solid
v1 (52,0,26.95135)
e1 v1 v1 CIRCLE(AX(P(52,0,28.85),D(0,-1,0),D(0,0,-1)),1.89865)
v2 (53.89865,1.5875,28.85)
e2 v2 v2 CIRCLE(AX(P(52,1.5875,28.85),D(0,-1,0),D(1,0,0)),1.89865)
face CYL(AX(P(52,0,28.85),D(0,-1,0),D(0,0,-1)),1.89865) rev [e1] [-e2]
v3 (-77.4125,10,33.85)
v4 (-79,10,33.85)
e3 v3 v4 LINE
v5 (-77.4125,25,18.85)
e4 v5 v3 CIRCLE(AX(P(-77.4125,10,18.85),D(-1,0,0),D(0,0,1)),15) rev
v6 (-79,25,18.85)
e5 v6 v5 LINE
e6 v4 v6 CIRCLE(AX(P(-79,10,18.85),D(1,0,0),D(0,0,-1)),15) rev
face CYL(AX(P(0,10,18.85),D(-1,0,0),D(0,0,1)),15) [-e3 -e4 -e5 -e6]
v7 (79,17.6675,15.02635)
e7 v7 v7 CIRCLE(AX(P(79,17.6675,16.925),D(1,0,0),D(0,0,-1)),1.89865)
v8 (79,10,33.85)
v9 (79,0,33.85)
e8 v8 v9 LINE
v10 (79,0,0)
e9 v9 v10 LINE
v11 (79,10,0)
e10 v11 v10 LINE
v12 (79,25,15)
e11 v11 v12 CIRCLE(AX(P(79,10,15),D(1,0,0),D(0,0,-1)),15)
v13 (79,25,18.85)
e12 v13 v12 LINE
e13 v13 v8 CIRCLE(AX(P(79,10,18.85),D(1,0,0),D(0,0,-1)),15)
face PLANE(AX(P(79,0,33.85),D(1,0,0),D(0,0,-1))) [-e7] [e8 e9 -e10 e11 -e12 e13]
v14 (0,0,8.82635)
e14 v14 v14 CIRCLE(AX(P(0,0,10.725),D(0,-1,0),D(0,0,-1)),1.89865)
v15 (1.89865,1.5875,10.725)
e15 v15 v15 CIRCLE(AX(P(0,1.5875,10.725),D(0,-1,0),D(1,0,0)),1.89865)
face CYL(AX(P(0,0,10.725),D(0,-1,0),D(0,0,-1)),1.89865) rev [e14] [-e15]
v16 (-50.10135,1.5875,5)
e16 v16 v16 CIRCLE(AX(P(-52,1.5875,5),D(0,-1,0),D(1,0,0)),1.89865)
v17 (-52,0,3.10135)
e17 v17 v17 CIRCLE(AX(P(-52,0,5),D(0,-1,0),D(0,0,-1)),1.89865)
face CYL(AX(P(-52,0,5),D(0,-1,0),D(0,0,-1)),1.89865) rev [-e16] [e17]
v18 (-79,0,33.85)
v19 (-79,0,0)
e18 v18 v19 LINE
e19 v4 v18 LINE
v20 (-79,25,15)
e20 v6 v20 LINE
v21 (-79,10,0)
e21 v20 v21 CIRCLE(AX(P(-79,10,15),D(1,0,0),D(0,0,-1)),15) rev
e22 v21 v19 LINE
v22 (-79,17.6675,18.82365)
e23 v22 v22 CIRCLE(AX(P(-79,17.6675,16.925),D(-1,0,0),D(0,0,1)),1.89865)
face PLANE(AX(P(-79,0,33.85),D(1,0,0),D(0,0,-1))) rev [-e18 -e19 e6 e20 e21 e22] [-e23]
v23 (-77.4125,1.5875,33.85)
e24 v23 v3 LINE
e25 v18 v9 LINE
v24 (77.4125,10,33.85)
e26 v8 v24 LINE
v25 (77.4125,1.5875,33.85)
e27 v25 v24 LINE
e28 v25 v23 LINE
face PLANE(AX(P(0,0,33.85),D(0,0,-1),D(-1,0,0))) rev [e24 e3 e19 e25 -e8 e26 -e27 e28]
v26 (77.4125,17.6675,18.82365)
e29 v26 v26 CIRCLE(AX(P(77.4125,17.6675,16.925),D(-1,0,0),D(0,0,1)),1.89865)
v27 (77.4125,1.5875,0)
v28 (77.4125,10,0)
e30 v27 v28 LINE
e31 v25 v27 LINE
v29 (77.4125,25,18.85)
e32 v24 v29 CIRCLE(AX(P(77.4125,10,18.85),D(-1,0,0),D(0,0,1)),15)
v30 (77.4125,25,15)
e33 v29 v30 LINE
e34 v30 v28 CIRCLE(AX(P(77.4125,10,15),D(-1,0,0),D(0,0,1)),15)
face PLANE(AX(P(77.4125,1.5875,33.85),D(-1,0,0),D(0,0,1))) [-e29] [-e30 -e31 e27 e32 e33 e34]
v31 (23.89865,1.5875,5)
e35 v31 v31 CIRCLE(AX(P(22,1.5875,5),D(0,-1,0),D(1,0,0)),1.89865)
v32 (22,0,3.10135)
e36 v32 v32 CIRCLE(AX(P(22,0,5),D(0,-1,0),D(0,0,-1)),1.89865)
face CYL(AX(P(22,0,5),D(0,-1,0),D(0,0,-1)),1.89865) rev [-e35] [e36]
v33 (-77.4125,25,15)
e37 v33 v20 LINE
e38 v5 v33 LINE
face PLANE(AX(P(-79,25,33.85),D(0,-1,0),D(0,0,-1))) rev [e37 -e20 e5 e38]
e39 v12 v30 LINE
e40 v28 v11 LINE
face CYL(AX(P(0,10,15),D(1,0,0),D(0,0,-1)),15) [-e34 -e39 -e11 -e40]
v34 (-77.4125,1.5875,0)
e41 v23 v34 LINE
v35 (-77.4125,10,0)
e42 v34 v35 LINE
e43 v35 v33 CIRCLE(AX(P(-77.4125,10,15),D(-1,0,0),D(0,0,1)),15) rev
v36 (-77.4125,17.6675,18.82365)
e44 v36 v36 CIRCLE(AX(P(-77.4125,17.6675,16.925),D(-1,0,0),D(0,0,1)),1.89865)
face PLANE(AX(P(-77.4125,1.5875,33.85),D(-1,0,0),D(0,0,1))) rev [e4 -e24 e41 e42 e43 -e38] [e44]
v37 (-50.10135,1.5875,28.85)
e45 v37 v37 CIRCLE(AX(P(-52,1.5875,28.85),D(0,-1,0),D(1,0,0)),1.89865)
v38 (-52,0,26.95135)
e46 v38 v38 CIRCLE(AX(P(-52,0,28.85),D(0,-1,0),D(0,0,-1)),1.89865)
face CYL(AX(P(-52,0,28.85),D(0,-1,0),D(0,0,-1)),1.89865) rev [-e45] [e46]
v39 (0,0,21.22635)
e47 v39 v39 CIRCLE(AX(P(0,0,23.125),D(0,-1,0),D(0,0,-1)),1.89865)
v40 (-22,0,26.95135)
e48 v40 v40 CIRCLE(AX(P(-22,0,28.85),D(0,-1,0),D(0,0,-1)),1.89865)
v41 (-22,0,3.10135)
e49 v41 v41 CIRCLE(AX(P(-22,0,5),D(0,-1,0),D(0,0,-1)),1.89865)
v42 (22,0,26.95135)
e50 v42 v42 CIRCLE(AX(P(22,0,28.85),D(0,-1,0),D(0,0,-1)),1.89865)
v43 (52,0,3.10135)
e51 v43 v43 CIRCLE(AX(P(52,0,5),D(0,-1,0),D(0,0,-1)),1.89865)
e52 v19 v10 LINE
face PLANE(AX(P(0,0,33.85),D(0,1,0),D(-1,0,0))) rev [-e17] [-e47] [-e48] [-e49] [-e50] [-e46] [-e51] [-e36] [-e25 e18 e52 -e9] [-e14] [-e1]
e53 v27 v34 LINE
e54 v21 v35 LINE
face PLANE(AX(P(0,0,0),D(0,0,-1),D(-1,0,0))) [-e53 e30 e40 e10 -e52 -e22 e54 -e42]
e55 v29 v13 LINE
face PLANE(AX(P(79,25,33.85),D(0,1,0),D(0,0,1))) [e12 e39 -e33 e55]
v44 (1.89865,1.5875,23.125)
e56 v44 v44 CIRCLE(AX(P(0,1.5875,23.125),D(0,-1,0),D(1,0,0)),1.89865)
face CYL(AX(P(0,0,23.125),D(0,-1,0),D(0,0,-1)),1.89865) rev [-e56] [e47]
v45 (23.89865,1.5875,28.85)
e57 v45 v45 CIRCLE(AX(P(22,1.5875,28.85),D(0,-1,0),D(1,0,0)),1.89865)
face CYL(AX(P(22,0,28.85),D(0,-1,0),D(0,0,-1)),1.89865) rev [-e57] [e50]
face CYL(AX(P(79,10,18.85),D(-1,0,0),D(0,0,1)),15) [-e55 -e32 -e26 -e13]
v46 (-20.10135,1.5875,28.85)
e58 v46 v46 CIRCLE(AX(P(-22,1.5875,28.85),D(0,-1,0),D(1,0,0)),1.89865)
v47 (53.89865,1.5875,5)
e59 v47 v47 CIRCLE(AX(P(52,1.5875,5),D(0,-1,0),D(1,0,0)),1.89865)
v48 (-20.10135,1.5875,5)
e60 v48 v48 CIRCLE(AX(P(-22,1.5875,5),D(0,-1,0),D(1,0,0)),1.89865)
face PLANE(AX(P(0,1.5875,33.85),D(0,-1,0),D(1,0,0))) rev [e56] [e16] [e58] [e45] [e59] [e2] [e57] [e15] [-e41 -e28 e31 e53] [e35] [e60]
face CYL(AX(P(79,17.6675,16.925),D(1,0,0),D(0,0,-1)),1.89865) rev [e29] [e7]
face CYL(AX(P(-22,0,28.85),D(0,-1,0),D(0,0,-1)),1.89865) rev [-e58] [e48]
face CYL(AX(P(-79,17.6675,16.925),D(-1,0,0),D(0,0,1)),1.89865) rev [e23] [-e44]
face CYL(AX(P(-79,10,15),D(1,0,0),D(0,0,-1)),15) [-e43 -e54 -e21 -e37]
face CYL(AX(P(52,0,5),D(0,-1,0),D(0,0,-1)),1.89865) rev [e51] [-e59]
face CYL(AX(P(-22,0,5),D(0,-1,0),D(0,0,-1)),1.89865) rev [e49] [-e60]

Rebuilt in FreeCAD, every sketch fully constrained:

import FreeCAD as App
import Part
import Sketcher

V = App.Vector


def edges_at(feature, points):
    """Names of the edges that pass closest to the given points."""
    edges = feature.Shape.Edges
    near = lambda p: min(range(len(edges)), key=lambda i: edges[i].distToShape(Part.Vertex(*p))[0])
    return sorted({f"Edge{near(p) + 1}" for p in points})

doc = App.newDocument("Part")
params = doc.addObject("Spreadsheet::Sheet", "Params")
for row, (alias, value) in enumerate([
    ("sketch1_width", "79 mm"),
    ("sketch1_height", "25 mm"),
    ("pad1_length", "33.85 mm"),
    ("hole_diameter", "3.7973 mm"),
    ("hole2_diameter", "3.7973 mm"),
    ("fillet_radius", "15 mm"),
    ("fillet2_radius", "15 mm"),
    ("hole3_diameter", "3.7973 mm"),
], start=1):
    params.set(f"A{row}", alias)
    params.set(f"B{row}", "=" + value)
    params.setAlias(f"B{row}", alias)

body = doc.addObject("PartDesign::Body", "Body")

# Sketch on XY plane
sketch1 = body.newObject("Sketcher::SketchObject", "Sketch")
sketch1.AttachmentSupport = (doc.getObject("XY_Plane"), [""])
sketch1.MapMode = "FlatFace"
sketch1.addGeometry([
    Part.LineSegment(V(-79, 0, 0), V(0, 0, 0)),  # 0
    Part.LineSegment(V(0, 0, 0), V(0, 1.5875, 0)),  # 1
    Part.LineSegment(V(0, 1.5875, 0), V(-77.4125, 1.5875, 0)),  # 2
    Part.LineSegment(V(-77.4125, 1.5875, 0), V(-77.4125, 25, 0)),  # 3
    Part.LineSegment(V(-77.4125, 25, 0), V(-79, 25, 0)),  # 4
    Part.LineSegment(V(-79, 25, 0), V(-79, 0, 0)),  # 5
], False)
sketch1.addConstraint([
    Sketcher.Constraint("Coincident", 0, 2, 1, 1),
    Sketcher.Constraint("Coincident", 1, 2, 2, 1),
    Sketcher.Constraint("Coincident", 2, 2, 3, 1),
    Sketcher.Constraint("Coincident", 3, 2, 4, 1),
    Sketcher.Constraint("Coincident", 4, 2, 5, 1),
    Sketcher.Constraint("Coincident", 5, 2, 0, 1),
    Sketcher.Constraint("Horizontal", 0),
    Sketcher.Constraint("Vertical", 1),
    Sketcher.Constraint("Horizontal", 2),
    Sketcher.Constraint("Vertical", 3),
    Sketcher.Constraint("Horizontal", 4),
    Sketcher.Constraint("Vertical", 5),
    Sketcher.Constraint("Coincident", 0, 2, -1, 1),
    Sketcher.Constraint("Equal", 4, 1),
    Sketcher.Constraint("DistanceX", 0, 1, 0, 2, 79.0),
    Sketcher.Constraint("DistanceY", 5, 2, 5, 1, 25.0),
    Sketcher.Constraint("DistanceX", 2, 2, 2, 1, 77.4125),
])
sketch1.setExpression("Constraints[14]", "Params.sketch1_width")
sketch1.setExpression("Constraints[15]", "Params.sketch1_height")
pad1 = body.newObject("PartDesign::Pad", "Pad")
pad1.Profile = sketch1
pad1.setExpression("Length", "Params.pad1_length")

# Sketch on YZ plane
sketch2 = body.newObject("Sketcher::SketchObject", "Sketch001")
sketch2.AttachmentSupport = (doc.getObject("YZ_Plane"), [""])
sketch2.MapMode = "FlatFace"
sketch2.AttachmentOffset = App.Placement(V(0, 0, -79), App.Rotation())
sketch2.addGeometry(Part.Circle(V(17.6675, 16.925, 0), V(0, 0, 1), 1.89865), False)
sketch2.addConstraint([
    Sketcher.Constraint("Diameter", 0, 3.7973),
    Sketcher.Constraint("DistanceY", -1, 1, 0, 3, 16.925),
    Sketcher.Constraint("DistanceX", -1, 1, 0, 3, 17.6675),
])
doc.recompute()
hole = body.newObject("PartDesign::Hole", "Hole")
hole.Profile = sketch2
hole.ThreadType = "None"
hole.setExpression("Diameter", "Params.hole_diameter")
hole.DepthType = "ThroughAll"
hole.Reversed = True

# Sketch on XZ plane
sketch3 = body.newObject("Sketcher::SketchObject", "Sketch002")
sketch3.AttachmentSupport = (doc.getObject("XZ_Plane"), [""])
sketch3.MapMode = "FlatFace"
sketch3.addGeometry([
    Part.Circle(V(-22, 5, 0), V(0, 0, 1), 1.89865),
    Part.Circle(V(-52, 5, 0), V(0, 0, 1), 1.89865),
    Part.Circle(V(-52, 28.85, 0), V(0, 0, 1), 1.89865),
    Part.Circle(V(-22, 28.85, 0), V(0, 0, 1), 1.89865),
], False)
sketch3.addConstraint([
    Sketcher.Constraint("Equal", 0, 1),
    Sketcher.Constraint("Equal", 1, 2),
    Sketcher.Constraint("Equal", 2, 3),
    Sketcher.Constraint("Horizontal", 0, 3, 1, 3),
    Sketcher.Constraint("Horizontal", 2, 3, 3, 3),
    Sketcher.Constraint("Vertical", 1, 3, 2, 3),
    Sketcher.Constraint("Vertical", 0, 3, 3, 3),
    Sketcher.Constraint("DistanceX", 0, 3, -1, 1, 22.0),
    Sketcher.Constraint("DistanceY", -1, 1, 0, 3, 5.0),
    Sketcher.Constraint("DistanceX", 1, 3, -1, 1, 52.0),
    Sketcher.Constraint("Diameter", 0, 3.7973),
    Sketcher.Constraint("DistanceY", -1, 1, 2, 3, 28.85),
])
doc.recompute()
hole2 = body.newObject("PartDesign::Hole", "Hole001")
hole2.Profile = sketch3
hole2.ThreadType = "None"
hole2.setExpression("Diameter", "Params.hole2_diameter")
hole2.DepthType = "ThroughAll"
doc.recompute()

fillet = body.newObject("PartDesign::Fillet", "Fillet")
fillet.Base = (hole2, edges_at(hole2, [(-78.206, 25, 33.85), (-78.206, 25, 0)]))
fillet.setExpression("Radius", "Params.fillet_radius")
doc.recompute()

mirrored = body.newObject("PartDesign::Mirrored", "Mirrored")
mirrored.Originals = [pad1, hole, hole2]
mirrored.MirrorPlane = (doc.getObject("YZ_Plane"), [""])
body.Tip = mirrored
doc.recompute()

fillet2 = body.newObject("PartDesign::Fillet", "Fillet001")
fillet2.Base = (mirrored, edges_at(mirrored, [(78.206, 25, 33.85), (78.206, 25, 0)]))
fillet2.setExpression("Radius", "Params.fillet2_radius")

# Sketch on XZ plane
sketch4 = body.newObject("Sketcher::SketchObject", "Sketch003")
sketch4.AttachmentSupport = (doc.getObject("XZ_Plane"), [""])
sketch4.MapMode = "FlatFace"
sketch4.addGeometry([
    Part.Circle(V(0, 23.125, 0), V(0, 0, 1), 1.89865),
    Part.Circle(V(0, 10.725, 0), V(0, 0, 1), 1.89865),
], False)
sketch4.addConstraint([
    Sketcher.Constraint("Equal", 0, 1),
    Sketcher.Constraint("PointOnObject", 0, 3, -2),
    Sketcher.Constraint("PointOnObject", 1, 3, -2),
    Sketcher.Constraint("Diameter", 0, 3.7973),
    Sketcher.Constraint("DistanceY", 1, 3, 0, 3, 12.4),
    Sketcher.Constraint("DistanceY", -1, 1, 0, 3, 23.125),
])
doc.recompute()
hole3 = body.newObject("PartDesign::Hole", "Hole002")
hole3.Profile = sketch4
hole3.ThreadType = "None"
hole3.setExpression("Diameter", "Params.hole3_diameter")
hole3.DepthType = "ThroughAll"

doc.recompute()
